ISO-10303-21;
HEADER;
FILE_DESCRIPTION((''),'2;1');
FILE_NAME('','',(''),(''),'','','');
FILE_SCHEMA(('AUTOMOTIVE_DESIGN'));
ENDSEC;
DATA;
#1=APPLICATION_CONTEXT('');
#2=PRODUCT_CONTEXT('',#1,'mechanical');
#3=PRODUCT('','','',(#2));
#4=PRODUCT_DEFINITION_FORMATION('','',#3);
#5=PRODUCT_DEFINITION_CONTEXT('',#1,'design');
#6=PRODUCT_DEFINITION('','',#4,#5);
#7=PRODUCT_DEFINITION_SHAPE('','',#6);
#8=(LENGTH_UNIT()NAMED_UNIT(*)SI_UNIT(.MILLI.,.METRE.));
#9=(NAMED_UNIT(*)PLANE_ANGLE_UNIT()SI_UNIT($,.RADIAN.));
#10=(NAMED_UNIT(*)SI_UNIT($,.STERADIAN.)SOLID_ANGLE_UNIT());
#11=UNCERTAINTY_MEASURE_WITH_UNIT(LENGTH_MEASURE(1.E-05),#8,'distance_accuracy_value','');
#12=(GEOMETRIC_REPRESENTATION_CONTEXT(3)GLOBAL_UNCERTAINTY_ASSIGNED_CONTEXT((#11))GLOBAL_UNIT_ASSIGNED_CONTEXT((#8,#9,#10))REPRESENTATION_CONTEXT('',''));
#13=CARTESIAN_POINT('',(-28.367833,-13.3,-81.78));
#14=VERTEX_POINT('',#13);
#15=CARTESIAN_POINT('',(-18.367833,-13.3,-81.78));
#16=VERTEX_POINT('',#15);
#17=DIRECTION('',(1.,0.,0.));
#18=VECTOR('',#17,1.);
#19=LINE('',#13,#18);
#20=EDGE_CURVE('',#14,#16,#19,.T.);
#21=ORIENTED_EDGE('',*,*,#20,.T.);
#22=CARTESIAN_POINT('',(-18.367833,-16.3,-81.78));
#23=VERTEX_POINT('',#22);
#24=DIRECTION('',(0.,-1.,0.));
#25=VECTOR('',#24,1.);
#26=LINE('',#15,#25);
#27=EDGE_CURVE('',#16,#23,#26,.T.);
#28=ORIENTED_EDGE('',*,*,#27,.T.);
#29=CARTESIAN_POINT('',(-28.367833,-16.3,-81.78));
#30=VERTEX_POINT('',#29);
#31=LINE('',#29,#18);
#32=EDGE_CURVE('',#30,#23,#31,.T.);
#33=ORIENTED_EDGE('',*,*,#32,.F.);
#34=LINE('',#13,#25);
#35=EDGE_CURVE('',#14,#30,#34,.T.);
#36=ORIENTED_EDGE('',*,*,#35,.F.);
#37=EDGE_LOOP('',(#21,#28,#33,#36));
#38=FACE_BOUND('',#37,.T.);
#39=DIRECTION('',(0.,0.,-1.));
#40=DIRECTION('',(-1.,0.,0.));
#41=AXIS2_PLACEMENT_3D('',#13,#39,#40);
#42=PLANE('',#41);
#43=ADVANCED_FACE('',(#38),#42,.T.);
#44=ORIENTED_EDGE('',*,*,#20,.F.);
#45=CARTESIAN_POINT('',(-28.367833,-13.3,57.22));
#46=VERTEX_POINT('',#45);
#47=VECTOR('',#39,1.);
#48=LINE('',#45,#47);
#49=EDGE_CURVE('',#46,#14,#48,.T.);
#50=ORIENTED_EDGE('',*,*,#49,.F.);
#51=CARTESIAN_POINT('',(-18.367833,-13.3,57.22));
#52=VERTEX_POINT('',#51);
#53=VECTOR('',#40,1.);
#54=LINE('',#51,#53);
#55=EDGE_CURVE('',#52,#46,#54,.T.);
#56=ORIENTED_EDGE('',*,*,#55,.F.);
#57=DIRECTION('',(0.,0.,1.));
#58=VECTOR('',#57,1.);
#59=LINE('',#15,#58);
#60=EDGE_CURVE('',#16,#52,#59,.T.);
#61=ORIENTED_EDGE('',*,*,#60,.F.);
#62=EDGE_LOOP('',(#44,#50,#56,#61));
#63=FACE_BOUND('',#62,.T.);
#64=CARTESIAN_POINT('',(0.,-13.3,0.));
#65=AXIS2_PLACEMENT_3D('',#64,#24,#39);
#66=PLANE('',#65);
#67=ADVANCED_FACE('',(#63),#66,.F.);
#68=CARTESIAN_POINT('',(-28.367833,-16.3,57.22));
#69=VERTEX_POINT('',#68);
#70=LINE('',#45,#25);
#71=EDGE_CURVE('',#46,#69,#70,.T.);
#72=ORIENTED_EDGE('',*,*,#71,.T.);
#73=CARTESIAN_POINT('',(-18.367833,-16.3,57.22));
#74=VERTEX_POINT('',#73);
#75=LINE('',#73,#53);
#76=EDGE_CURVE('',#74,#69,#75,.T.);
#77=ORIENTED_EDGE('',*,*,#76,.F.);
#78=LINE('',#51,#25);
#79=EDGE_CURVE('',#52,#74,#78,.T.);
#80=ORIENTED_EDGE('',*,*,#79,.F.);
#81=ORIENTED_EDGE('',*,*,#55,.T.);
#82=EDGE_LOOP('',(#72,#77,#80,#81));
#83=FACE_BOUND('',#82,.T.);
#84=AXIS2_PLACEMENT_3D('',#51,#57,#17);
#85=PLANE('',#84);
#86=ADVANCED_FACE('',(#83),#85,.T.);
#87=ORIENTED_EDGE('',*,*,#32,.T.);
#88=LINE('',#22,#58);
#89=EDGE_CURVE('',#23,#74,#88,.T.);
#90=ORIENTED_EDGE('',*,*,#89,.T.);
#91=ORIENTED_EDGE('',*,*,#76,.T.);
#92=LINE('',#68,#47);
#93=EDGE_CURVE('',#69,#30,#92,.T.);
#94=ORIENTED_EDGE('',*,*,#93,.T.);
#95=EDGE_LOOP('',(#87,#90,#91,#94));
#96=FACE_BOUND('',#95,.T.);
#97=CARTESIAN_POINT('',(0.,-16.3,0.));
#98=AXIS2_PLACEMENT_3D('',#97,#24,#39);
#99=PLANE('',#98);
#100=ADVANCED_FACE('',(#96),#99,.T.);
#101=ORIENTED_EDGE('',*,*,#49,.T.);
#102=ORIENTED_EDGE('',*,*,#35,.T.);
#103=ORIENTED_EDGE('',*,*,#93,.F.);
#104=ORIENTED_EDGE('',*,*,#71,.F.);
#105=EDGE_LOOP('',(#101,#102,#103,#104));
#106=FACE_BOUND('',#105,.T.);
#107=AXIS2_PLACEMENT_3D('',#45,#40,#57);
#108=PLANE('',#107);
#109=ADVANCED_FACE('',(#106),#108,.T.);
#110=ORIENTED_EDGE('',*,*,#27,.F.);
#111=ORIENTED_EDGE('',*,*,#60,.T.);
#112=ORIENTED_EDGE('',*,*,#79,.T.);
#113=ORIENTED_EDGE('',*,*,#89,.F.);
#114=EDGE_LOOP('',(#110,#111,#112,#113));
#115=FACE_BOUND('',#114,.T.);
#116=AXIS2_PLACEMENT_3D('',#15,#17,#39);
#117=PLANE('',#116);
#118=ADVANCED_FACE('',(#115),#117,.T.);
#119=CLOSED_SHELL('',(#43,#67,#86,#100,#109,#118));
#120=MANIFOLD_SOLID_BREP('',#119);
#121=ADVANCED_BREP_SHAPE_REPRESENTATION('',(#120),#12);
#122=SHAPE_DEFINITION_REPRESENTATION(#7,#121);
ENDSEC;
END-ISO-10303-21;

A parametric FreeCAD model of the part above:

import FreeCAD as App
import Part
import Sketcher
from FreeCAD import Vector
Q = App.Units.Quantity


def add_polygon(sketch, points):
    """Adds a closed chain of lines whose ends are joined by coincident constraints."""
    first, n = sketch.GeometryCount, len(points)
    for a, b in zip(points, points[1:] + points[:1]):
        sketch.addGeometry(Part.LineSegment(App.Vector(*a, 0), App.Vector(*b, 0)), False)
    for i in range(n):
        sketch.addConstraint(Sketcher.Constraint("Coincident", first + i, 2, first + (i + 1) % n, 1))

doc = App.newDocument("Part")
body = doc.addObject("PartDesign::Body", "Body")

# Sketch on XZ plane
sketch1 = doc.addObject("Sketcher::SketchObject", "Sketch")
body.addObject(sketch1)
sketch1.AttachmentSupport = (doc.XZ_Plane, [""])
sketch1.MapMode = "FlatFace"
sketch1.AttachmentOffset = App.Placement(Vector(0, 0, 16.3), App.Rotation())
add_polygon(sketch1, [(-28.367833, 57.22), (-28.367833, -81.78), (-18.367833, -81.78), (-18.367833, 57.22)])  # lines 0-3
sketch1.addConstraint([
    Sketcher.Constraint("Vertical", 0),
    Sketcher.Constraint("Horizontal", 1),
    Sketcher.Constraint("Vertical", 2),
    Sketcher.Constraint("Horizontal", 3),
    Sketcher.Constraint("DistanceX", 1, 1, 1, 2, Q("10 mm")),
    Sketcher.Constraint("DistanceY", 0, 2, 0, 1, Q("139 mm")),
    Sketcher.Constraint("DistanceY", 0, 2, -1, 1, Q("81.78 mm")),
    Sketcher.Constraint("DistanceX", 0, 2, -1, 1, Q("28.367833 mm")),
])
pad1 = doc.addObject("PartDesign::Pad", "Pad")
body.addObject(pad1)
pad1.Profile = sketch1
pad1.Length = 3
pad1.Reversed = True

doc.recompute()
